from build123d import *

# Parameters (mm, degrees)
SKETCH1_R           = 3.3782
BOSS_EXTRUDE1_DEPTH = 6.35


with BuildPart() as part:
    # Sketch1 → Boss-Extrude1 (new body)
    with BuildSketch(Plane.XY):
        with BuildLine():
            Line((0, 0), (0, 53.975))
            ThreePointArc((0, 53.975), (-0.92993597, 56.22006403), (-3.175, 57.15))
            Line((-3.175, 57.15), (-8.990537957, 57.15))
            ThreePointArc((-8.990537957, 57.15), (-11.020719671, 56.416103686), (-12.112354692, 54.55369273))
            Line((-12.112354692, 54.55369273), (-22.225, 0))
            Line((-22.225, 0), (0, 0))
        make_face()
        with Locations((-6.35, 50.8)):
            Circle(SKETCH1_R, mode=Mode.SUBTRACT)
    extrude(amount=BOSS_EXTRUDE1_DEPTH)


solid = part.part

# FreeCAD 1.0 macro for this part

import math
import FreeCAD as App
import Part
import Sketcher
Q = App.Units.Quantity

doc = App.newDocument("Part")
params = doc.addObject("Spreadsheet::Sheet", "Params")
for row, (alias, value) in enumerate([
    ("sketch1_diameter", "0.266 in"),
    ("sketch1_radius", "0.125 in"),
    ("sketch1_width", "0.875 in"),
    ("sketch1_height", "2.125 in"),
    ("pad1_length", "0.25 in"),
], start=1):
    params.set(f"A{row}", alias)
    params.set(f"B{row}", "=" + value)
    params.setAlias(f"B{row}", alias)

body = doc.addObject("PartDesign::Body", "Body")

# Sketch on XY plane
sketch1 = doc.addObject("Sketcher::SketchObject", "Sketch")
body.addObject(sketch1)
sketch1.AttachmentSupport = (doc.XY_Plane, [""])
sketch1.MapMode = "FlatFace"
sketch1.addGeometry(Part.LineSegment(App.Vector(0, 0, 0), App.Vector(0, 53.975, 0)), False)
sketch1.addGeometry(Part.ArcOfCircle(Part.Circle(App.Vector(-3.175, 53.975, 0), App.Vector(0, 0, 1), 3.175), math.radians(0), math.radians(90)), False)
sketch1.addGeometry(Part.LineSegment(App.Vector(-3.175, 57.15, 0), App.Vector(-8.990538, 57.15, 0)), False)
sketch1.addGeometry(Part.ArcOfCircle(Part.Circle(App.Vector(-8.990538, 53.975, 0), App.Vector(0, 0, 1), 3.175), math.radians(90), math.radians(169.498258)), False)
sketch1.addGeometry(Part.LineSegment(App.Vector(-12.112355, 54.553693, 0), App.Vector(-22.225, 0, 0)), False)
sketch1.addGeometry(Part.LineSegment(App.Vector(-22.225, 0, 0), App.Vector(0, 0, 0)), False)
sketch1.addGeometry(Part.Circle(App.Vector(-6.35, 50.8, 0), App.Vector(0, 0, 1), 3.3782), False)
sketch1.addConstraint(Sketcher.Constraint("Tangent", 0, 2, 1, 1))
sketch1.addConstraint(Sketcher.Constraint("Tangent", 1, 2, 2, 1))
sketch1.addConstraint(Sketcher.Constraint("Tangent", 2, 2, 3, 1))
sketch1.addConstraint(Sketcher.Constraint("Tangent", 3, 2, 4, 1))
sketch1.addConstraint(Sketcher.Constraint("Coincident", 4, 2, 5, 1))
sketch1.addConstraint(Sketcher.Constraint("Coincident", 5, 2, 0, 1))
sketch1.addConstraint(Sketcher.Constraint("Vertical", 0))
sketch1.addConstraint(Sketcher.Constraint("Horizontal", 2))
sketch1.addConstraint(Sketcher.Constraint("Horizontal", 5))
sketch1.addConstraint(Sketcher.Constraint("Coincident", 5, 2, -1, 1))
sketch1.addConstraint(Sketcher.Constraint("Equal", 1, 3))
sketch1.addConstraint(Sketcher.Constraint("Diameter", 6, Q("0.266 in")))
sketch1.addConstraint(Sketcher.Constraint("DistanceY", -1, 1, 6, 3, Q("2 in")))
sketch1.addConstraint(Sketcher.Constraint("Radius", 1, Q("0.125 in")))
sketch1.addConstraint(Sketcher.Constraint("DistanceX", 5, 1, 5, 2, Q("0.875 in")))
sketch1.addConstraint(Sketcher.Constraint("DistanceY", 0, 1, 0, 2, Q("2.125 in")))
sketch1.addConstraint(Sketcher.Constraint("DistanceX", 6, 3, -1, 1, Q("0.25 in")))
sketch1.addConstraint(Sketcher.Constraint("Distance", 4, 55.483069))
sketch1.setExpression("Constraints[11]", "Params.sketch1_diameter")
sketch1.setExpression("Constraints[13]", "Params.sketch1_radius")
sketch1.setExpression("Constraints[14]", "Params.sketch1_width")
sketch1.setExpression("Constraints[15]", "Params.sketch1_height")
pad1 = doc.addObject("PartDesign::Pad", "Pad")
body.addObject(pad1)
pad1.Profile = sketch1
pad1.setExpression("Length", "Params.pad1_length")

doc.recompute()
